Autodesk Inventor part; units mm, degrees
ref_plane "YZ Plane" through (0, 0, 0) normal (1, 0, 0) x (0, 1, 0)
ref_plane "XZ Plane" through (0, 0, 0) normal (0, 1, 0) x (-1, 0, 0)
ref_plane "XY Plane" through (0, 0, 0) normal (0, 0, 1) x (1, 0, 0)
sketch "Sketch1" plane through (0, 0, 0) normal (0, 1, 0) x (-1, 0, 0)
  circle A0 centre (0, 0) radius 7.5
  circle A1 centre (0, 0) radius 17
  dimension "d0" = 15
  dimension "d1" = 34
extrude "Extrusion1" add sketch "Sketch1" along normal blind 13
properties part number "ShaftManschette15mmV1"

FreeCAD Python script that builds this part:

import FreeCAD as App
import Part
import Sketcher
Q = App.Units.Quantity

doc = App.newDocument("Part")
body = doc.addObject("PartDesign::Body", "Body")

sketch1 = body.newObject("Sketcher::SketchObject", "Sketch")
sketch1.AttachmentSupport = (doc.getObject("XZ_Plane"), [""])
sketch1.MapMode = "FlatFace"
sketch1.addGeometry([
    Part.Circle(App.Vector(0, 0, 0), App.Vector(0, 0, 1), 17),
    Part.Circle(App.Vector(0, 0, 0), App.Vector(0, 0, 1), 8),
], False)
sketch1.addConstraint([
    Sketcher.Constraint("Coincident", 0, 3, -1, 1),
    Sketcher.Constraint("Coincident", 1, 3, -1, 1),
    Sketcher.Constraint("Diameter", 0, Q("34 mm")),
    Sketcher.Constraint("Diameter", 1, Q("15 mm")),
])
pad1 = body.newObject("PartDesign::Pad", "Pad")
pad1.Profile = sketch1
pad1.Length = 13
pad1.Reversed = True

doc.recompute()
